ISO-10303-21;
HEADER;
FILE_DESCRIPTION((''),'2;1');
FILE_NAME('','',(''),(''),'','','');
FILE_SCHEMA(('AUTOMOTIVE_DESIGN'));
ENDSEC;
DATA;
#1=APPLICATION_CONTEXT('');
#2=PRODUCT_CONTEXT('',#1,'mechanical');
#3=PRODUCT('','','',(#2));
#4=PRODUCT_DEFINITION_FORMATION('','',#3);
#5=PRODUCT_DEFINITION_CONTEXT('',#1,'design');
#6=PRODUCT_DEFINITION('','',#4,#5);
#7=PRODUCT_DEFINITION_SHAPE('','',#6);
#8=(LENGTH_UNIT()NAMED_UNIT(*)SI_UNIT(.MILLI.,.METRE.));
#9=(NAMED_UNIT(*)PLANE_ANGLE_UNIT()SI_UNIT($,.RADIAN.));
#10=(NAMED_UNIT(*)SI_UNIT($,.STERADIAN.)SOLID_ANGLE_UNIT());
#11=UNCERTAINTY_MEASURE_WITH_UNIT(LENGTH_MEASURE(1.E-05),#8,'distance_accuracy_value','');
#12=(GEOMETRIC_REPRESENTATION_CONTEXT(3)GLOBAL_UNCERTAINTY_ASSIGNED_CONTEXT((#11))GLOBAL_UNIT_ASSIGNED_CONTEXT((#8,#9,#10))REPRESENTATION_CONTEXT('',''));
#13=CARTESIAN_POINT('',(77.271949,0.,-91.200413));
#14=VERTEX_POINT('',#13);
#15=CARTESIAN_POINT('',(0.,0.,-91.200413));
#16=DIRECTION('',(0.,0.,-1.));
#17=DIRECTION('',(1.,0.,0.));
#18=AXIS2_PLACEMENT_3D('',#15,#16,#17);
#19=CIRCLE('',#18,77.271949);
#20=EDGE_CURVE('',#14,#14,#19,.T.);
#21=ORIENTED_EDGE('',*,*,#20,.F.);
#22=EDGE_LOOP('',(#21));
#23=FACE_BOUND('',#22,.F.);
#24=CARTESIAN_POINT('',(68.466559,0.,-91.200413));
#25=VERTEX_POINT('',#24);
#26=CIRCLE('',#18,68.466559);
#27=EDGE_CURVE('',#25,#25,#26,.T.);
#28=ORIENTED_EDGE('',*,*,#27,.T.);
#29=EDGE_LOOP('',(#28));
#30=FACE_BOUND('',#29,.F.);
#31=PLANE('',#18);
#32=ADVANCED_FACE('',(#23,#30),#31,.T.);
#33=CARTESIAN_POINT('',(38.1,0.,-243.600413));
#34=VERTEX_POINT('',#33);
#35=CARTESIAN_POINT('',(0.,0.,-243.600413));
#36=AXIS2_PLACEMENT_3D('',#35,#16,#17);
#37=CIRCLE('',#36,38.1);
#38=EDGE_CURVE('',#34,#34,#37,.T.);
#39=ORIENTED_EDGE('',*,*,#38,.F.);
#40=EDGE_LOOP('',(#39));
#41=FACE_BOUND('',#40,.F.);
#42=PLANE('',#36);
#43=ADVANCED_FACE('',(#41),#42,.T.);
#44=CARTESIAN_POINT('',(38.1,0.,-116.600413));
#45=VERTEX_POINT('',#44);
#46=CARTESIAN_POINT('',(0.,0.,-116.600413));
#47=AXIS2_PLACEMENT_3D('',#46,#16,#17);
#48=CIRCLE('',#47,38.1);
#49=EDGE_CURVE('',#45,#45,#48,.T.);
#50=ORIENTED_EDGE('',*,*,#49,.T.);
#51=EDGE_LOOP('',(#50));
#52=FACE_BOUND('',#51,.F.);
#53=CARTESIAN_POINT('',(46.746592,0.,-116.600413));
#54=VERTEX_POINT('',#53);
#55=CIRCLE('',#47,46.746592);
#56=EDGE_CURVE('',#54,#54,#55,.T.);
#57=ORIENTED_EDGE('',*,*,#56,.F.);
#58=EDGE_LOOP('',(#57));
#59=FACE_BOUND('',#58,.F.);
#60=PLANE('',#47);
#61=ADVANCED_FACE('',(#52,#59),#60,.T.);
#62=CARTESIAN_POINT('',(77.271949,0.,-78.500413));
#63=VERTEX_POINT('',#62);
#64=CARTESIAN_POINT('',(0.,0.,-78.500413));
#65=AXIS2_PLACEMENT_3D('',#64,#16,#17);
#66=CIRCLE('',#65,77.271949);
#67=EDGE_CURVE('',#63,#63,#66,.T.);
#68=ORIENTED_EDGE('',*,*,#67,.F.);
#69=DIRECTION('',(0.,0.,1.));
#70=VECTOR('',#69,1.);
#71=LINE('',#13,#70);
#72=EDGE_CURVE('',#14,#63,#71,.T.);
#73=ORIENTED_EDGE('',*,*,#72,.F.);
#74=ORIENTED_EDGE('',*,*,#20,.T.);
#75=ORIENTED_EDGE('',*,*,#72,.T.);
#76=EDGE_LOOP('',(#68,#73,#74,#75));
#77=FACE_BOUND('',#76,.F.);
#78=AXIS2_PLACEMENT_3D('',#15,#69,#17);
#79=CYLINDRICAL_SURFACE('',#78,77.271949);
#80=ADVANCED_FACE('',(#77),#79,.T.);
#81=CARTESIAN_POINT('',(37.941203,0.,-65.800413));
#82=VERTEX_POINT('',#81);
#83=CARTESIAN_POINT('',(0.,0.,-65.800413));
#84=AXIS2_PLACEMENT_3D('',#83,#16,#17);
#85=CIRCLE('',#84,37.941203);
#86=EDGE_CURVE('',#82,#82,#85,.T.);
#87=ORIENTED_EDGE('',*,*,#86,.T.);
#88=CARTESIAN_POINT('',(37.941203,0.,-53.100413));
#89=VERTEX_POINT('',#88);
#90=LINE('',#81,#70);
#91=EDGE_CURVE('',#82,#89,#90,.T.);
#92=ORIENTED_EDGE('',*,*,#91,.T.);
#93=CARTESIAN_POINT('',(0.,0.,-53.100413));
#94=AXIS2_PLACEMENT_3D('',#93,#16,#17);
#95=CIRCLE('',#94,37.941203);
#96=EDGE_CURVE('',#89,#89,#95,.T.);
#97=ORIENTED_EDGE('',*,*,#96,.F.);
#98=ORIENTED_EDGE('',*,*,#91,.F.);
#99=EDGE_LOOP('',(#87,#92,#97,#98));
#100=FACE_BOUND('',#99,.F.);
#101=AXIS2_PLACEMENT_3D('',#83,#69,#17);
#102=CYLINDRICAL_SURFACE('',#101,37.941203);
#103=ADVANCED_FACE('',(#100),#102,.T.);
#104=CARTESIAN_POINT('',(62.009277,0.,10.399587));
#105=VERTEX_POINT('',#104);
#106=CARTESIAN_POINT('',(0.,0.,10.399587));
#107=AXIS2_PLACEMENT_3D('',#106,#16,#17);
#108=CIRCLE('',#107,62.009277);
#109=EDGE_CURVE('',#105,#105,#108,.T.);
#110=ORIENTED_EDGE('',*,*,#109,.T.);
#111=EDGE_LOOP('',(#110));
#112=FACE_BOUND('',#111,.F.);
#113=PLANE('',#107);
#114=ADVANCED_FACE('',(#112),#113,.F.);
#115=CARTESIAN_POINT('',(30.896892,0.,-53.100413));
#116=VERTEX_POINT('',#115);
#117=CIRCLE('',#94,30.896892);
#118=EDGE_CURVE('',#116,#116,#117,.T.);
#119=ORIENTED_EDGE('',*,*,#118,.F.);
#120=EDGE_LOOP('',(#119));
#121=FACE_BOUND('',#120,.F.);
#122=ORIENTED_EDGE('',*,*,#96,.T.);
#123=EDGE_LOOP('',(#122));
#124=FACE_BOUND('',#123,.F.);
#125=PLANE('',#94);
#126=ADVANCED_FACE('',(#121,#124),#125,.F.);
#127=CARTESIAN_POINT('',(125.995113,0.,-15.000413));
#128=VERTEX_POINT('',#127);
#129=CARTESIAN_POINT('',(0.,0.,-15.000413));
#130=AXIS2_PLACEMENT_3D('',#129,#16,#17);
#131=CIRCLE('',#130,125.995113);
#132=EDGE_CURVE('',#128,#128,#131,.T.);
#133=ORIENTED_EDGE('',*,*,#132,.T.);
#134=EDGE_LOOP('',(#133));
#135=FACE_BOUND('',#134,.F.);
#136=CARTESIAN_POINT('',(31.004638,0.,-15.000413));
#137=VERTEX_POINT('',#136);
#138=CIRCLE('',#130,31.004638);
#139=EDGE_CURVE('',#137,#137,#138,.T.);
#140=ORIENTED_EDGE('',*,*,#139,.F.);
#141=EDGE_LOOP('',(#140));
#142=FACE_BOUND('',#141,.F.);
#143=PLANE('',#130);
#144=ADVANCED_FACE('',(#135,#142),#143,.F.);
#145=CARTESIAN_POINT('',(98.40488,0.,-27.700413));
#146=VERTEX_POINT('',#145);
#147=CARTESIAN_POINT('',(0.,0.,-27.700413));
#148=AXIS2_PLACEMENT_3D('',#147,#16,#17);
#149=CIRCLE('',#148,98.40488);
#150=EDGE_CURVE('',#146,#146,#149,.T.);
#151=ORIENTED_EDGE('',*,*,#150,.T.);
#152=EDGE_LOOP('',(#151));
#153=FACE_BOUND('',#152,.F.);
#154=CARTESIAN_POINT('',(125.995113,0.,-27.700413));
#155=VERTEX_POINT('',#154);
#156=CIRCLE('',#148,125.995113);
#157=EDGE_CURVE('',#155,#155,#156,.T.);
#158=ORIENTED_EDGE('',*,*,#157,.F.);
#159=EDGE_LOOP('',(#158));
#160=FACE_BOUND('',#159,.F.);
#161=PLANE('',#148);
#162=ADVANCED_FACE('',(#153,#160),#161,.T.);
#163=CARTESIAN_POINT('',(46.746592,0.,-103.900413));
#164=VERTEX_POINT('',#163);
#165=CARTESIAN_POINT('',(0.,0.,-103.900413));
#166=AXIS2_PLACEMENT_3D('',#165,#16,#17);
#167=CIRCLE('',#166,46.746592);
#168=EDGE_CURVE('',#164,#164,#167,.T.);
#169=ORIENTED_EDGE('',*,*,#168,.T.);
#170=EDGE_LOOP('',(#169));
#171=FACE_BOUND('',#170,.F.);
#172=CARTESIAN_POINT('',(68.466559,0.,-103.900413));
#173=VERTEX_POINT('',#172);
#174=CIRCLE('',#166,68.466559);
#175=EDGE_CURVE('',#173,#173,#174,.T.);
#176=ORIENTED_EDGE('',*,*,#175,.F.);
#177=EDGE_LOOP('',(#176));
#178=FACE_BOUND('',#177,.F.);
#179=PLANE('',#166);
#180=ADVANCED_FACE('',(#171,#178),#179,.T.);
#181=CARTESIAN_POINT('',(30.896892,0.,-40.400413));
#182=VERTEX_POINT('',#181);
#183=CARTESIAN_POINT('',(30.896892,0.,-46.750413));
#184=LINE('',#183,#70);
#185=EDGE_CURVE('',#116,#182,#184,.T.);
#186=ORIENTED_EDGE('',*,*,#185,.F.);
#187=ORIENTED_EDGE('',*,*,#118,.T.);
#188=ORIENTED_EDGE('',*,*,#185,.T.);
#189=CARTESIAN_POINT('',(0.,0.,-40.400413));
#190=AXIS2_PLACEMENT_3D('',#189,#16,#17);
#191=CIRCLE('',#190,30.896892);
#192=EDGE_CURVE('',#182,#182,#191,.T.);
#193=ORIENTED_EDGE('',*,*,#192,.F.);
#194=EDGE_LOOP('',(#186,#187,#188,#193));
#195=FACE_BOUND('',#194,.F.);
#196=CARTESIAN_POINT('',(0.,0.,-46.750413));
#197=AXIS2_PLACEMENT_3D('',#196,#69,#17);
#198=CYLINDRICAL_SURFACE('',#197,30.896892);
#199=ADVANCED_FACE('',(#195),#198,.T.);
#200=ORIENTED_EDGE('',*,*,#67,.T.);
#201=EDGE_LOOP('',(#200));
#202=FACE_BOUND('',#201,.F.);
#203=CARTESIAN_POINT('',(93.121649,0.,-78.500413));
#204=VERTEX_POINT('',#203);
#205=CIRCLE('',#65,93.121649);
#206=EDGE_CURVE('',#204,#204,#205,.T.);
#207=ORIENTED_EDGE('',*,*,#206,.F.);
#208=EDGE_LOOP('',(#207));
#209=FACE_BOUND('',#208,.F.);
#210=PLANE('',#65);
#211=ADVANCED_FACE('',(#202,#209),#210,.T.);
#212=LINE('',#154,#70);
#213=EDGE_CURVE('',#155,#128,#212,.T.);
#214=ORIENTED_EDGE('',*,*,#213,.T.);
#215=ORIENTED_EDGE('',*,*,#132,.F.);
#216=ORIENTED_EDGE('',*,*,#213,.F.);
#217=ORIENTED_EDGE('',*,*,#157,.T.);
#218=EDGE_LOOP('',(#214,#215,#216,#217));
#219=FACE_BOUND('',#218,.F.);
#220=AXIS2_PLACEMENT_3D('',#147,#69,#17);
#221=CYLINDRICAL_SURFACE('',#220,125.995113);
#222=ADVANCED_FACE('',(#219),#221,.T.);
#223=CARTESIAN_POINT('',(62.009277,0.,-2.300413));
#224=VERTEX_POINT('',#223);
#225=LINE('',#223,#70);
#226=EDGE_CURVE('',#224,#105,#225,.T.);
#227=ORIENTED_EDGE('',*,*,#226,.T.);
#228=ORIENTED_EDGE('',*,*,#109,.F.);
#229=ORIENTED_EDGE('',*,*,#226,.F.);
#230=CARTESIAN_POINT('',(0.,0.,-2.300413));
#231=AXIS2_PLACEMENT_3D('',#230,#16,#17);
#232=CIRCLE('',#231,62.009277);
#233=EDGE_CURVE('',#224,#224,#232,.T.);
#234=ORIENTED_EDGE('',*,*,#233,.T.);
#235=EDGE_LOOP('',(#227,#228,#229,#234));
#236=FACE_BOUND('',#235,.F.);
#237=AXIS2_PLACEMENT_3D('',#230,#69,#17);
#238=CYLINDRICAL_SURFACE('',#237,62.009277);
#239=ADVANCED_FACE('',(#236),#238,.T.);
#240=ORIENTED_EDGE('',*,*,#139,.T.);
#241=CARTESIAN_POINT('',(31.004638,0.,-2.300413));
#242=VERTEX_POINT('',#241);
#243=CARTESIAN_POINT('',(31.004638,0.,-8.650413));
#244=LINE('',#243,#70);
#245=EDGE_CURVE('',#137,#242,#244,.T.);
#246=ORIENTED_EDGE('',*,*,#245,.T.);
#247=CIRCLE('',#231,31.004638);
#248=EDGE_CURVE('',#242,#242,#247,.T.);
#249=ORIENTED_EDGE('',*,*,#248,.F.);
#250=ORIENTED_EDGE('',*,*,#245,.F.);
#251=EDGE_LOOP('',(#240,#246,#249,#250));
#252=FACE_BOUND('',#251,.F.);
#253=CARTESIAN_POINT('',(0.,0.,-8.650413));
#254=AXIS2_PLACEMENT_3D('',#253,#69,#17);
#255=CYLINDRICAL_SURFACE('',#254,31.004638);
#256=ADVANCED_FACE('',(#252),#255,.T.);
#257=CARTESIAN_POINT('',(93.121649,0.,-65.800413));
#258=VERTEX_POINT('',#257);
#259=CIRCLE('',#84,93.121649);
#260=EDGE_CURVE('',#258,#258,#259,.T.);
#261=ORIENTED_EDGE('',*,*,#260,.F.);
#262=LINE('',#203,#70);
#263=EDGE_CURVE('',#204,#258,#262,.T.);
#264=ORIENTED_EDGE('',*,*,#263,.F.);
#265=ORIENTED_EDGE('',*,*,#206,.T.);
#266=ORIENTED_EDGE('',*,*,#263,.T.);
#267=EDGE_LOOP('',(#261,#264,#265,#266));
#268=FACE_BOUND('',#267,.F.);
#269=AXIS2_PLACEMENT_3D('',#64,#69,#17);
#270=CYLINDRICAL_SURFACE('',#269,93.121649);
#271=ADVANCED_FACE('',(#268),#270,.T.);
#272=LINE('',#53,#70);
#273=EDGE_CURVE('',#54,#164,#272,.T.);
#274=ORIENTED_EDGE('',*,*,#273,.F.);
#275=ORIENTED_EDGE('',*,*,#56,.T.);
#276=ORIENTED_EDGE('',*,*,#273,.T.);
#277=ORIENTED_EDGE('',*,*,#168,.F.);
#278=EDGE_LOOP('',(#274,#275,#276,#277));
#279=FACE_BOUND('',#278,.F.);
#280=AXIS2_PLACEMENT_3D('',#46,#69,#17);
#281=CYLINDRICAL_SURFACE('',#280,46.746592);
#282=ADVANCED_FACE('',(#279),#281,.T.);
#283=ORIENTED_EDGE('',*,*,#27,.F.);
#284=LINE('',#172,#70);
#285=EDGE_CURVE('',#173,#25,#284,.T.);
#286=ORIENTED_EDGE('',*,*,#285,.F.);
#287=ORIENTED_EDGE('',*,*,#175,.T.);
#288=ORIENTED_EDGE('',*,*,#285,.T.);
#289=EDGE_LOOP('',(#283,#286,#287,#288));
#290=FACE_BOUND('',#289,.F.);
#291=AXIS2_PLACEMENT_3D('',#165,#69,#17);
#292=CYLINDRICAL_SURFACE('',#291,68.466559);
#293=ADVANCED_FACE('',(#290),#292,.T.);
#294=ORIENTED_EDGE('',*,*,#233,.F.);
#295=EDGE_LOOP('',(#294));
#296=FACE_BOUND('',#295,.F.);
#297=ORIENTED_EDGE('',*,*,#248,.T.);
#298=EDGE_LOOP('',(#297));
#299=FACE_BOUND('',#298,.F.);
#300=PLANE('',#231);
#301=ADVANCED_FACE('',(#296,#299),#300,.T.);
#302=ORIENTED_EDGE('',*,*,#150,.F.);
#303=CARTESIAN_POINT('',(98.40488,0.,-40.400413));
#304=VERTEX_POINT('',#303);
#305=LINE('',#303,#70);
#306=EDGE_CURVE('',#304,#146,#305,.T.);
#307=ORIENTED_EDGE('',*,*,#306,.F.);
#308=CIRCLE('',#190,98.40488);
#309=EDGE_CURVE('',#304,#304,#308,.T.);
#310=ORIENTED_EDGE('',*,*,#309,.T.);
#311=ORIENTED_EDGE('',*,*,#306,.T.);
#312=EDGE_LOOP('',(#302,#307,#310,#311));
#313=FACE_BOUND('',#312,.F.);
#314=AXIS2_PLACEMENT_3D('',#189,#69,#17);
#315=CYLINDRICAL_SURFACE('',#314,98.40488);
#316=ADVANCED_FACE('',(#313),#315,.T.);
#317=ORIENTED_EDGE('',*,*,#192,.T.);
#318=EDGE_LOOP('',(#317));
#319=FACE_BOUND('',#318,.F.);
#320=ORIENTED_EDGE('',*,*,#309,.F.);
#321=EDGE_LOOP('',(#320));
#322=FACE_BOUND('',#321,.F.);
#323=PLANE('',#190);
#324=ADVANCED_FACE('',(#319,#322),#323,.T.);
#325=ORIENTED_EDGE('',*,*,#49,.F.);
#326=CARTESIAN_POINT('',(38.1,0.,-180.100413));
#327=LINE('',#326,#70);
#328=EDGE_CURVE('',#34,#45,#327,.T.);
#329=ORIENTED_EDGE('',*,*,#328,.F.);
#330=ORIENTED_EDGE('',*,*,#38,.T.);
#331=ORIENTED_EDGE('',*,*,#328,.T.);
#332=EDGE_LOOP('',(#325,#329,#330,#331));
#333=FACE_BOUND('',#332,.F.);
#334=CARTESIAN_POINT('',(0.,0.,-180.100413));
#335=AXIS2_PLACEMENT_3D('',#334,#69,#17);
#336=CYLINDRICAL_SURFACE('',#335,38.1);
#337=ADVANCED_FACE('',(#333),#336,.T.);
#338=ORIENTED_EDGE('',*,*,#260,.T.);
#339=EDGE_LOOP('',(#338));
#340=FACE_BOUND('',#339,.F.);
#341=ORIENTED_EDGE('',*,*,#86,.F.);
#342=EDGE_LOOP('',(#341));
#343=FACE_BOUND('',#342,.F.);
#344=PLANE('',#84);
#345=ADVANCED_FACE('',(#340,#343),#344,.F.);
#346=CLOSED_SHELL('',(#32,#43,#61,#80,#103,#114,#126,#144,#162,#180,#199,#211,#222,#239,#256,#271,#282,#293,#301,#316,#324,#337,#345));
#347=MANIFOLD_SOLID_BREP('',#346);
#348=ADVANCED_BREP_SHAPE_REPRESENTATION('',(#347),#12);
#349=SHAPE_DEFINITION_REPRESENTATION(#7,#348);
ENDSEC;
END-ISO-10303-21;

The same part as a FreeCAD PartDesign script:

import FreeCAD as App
import Part
import Sketcher

V = App.Vector
Q = App.Units.Quantity

doc = App.newDocument("Part")
body = doc.addObject("PartDesign::Body", "Body")

sketch1 = body.newObject("Sketcher::SketchObject", "Sketch")
sketch1.AttachmentSupport = (doc.getObject("XZ_Plane"), [""])
sketch1.MapMode = "FlatFace"
sketch1.addGeometry([
    Part.LineSegment(V(62, 10, 0), V(0, 10, 0)),
    Part.LineSegment(V(0, 10, 0), V(0, -244, 0)),
    Part.LineSegment(V(0, -244, 0), V(38, -244, 0)),
    Part.LineSegment(V(38, -244, 0), V(38, -117, 0)),
    Part.LineSegment(V(38, -117, 0), V(47, -117, 0)),
    Part.LineSegment(V(47, -117, 0), V(47, -104, 0)),
    Part.LineSegment(V(47, -104, 0), V(68, -104, 0)),
    Part.LineSegment(V(68, -104, 0), V(68, -91, 0)),
    Part.LineSegment(V(68, -91, 0), V(77, -91, 0)),
    Part.LineSegment(V(77, -91, 0), V(77, -79, 0)),
    Part.LineSegment(V(77, -79, 0), V(93, -79, 0)),
    Part.LineSegment(V(93, -79, 0), V(93, -66, 0)),
    Part.LineSegment(V(93, -66, 0), V(38, -66, 0)),
    Part.LineSegment(V(38, -66, 0), V(38, -53, 0)),
    Part.LineSegment(V(38, -53, 0), V(31, -53, 0)),
    Part.LineSegment(V(31, -53, 0), V(31, -40, 0)),
    Part.LineSegment(V(31, -40, 0), V(98, -40, 0)),
    Part.LineSegment(V(98, -40, 0), V(98, -28, 0)),
    Part.LineSegment(V(98, -28, 0), V(126, -28, 0)),
    Part.LineSegment(V(126, -28, 0), V(126, -15, 0)),
    Part.LineSegment(V(126, -15, 0), V(31, -15, 0)),
    Part.LineSegment(V(31, -15, 0), V(31, -2, 0)),
    Part.LineSegment(V(31, -2, 0), V(62, -2, 0)),
    Part.LineSegment(V(62, -2, 0), V(62, 10, 0)),
], False)
sketch1.addConstraint([
    Sketcher.Constraint("Coincident", 0, 2, 1, 1),
    Sketcher.Constraint("Coincident", 1, 2, 2, 1),
    Sketcher.Constraint("Coincident", 2, 2, 3, 1),
    Sketcher.Constraint("Coincident", 3, 2, 4, 1),
    Sketcher.Constraint("Coincident", 4, 2, 5, 1),
    Sketcher.Constraint("Coincident", 5, 2, 6, 1),
    Sketcher.Constraint("Coincident", 6, 2, 7, 1),
    Sketcher.Constraint("Coincident", 7, 2, 8, 1),
    Sketcher.Constraint("Coincident", 8, 2, 9, 1),
    Sketcher.Constraint("Coincident", 9, 2, 10, 1),
    Sketcher.Constraint("Coincident", 10, 2, 11, 1),
    Sketcher.Constraint("Coincident", 11, 2, 12, 1),
    Sketcher.Constraint("Coincident", 12, 2, 13, 1),
    Sketcher.Constraint("Coincident", 13, 2, 14, 1),
    Sketcher.Constraint("Coincident", 14, 2, 15, 1),
    Sketcher.Constraint("Coincident", 15, 2, 16, 1),
    Sketcher.Constraint("Coincident", 16, 2, 17, 1),
    Sketcher.Constraint("Coincident", 17, 2, 18, 1),
    Sketcher.Constraint("Coincident", 18, 2, 19, 1),
    Sketcher.Constraint("Coincident", 19, 2, 20, 1),
    Sketcher.Constraint("Coincident", 20, 2, 21, 1),
    Sketcher.Constraint("Coincident", 21, 2, 22, 1),
    Sketcher.Constraint("Coincident", 22, 2, 23, 1),
    Sketcher.Constraint("Coincident", 23, 2, 0, 1),
    Sketcher.Constraint("Horizontal", 0),
    Sketcher.Constraint("Vertical", 1),
    Sketcher.Constraint("Horizontal", 2),
    Sketcher.Constraint("Vertical", 3),
    Sketcher.Constraint("Horizontal", 4),
    Sketcher.Constraint("Vertical", 5),
    Sketcher.Constraint("Horizontal", 6),
    Sketcher.Constraint("Vertical", 7),
    Sketcher.Constraint("Horizontal", 8),
    Sketcher.Constraint("Vertical", 9),
    Sketcher.Constraint("Horizontal", 10),
    Sketcher.Constraint("Vertical", 11),
    Sketcher.Constraint("Horizontal", 12),
    Sketcher.Constraint("Vertical", 13),
    Sketcher.Constraint("Horizontal", 14),
    Sketcher.Constraint("Vertical", 15),
    Sketcher.Constraint("Horizontal", 16),
    Sketcher.Constraint("Vertical", 17),
    Sketcher.Constraint("Horizontal", 18),
    Sketcher.Constraint("Vertical", 19),
    Sketcher.Constraint("Horizontal", 20),
    Sketcher.Constraint("Vertical", 21),
    Sketcher.Constraint("Horizontal", 22),
    Sketcher.Constraint("Vertical", 23),
    Sketcher.Constraint("PointOnObject", 0, 2, -2),
    Sketcher.Constraint("Equal", 5, 7),
    Sketcher.Constraint("Equal", 7, 9),
    Sketcher.Constraint("Equal", 9, 11),
    Sketcher.Constraint("Equal", 11, 13),
    Sketcher.Constraint("Equal", 13, 15),
    Sketcher.Constraint("Equal", 15, 17),
    Sketcher.Constraint("Equal", 17, 19),
    Sketcher.Constraint("Equal", 19, 21),
    Sketcher.Constraint("Equal", 21, 23),
    Sketcher.Constraint("DistanceY", 1, 2, 1, 1, Q("10 in")),
    Sketcher.Constraint("DistanceY", 3, 1, 3, 2, Q("5 in")),
    Sketcher.Constraint("DistanceX", 2, 1, 2, 2, Q("1.5 in")),
    Sketcher.Constraint("DistanceX", 10, 1, 10, 2, 15.8497),
    Sketcher.Constraint("DistanceX", 4, 1, 4, 2, 8.646592),
    Sketcher.Constraint("DistanceX", 8, 1, 8, 2, 8.80539),
    Sketcher.Constraint("DistanceX", 14, 2, 14, 1, 7.044311),
    Sketcher.Constraint("DistanceX", 16, 1, 16, 2, 67.507988),
    Sketcher.Constraint("DistanceX", 22, 1, 22, 2, 31.004639),
    Sketcher.Constraint("DistanceX", 14, 2, 5, 2, 15.8497),
    Sketcher.Constraint("DistanceX", 0, 2, 0, 1, 62.009277),
    Sketcher.Constraint("DistanceX", 6, 1, 6, 2, 21.719967),
    Sketcher.Constraint("DistanceX", 18, 1, 18, 2, 27.590233),
    Sketcher.Constraint("DistanceY", -1, 1, 0, 2, 10.399587),
])
revolution = body.newObject("PartDesign::Revolution", "Revolution")
revolution.Profile = sketch1
revolution.ReferenceAxis = (sketch1, ["V_Axis"])
revolution.Angle = 360

doc.recompute()
